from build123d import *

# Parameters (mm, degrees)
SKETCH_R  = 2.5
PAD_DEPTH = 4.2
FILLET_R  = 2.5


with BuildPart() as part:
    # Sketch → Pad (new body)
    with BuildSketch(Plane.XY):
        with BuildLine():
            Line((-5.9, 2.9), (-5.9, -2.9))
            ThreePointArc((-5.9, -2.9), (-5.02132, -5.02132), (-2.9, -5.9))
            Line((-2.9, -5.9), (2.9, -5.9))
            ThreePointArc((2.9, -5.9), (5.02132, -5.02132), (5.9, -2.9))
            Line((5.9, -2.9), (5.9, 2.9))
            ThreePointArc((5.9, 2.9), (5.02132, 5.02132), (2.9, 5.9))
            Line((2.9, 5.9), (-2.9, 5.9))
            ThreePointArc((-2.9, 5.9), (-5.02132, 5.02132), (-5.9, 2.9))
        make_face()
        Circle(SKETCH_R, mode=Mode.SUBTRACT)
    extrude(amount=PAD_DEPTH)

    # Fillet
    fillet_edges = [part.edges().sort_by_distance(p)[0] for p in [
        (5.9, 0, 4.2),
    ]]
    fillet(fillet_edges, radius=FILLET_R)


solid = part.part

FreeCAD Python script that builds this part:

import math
import FreeCAD as App
import Part
import Sketcher
from FreeCAD import Vector


def edges_at(feature, points):
    """Names of the edges that pass closest to the given points."""
    edges = feature.Shape.Edges
    near = lambda p: min(range(len(edges)), key=lambda i: edges[i].distToShape(Part.Vertex(*p))[0])
    return sorted({f"Edge{near(p) + 1}" for p in points})

doc = App.newDocument("Part")
body = doc.addObject("PartDesign::Body", "Body")

# Sketch on XY plane
sketch1 = body.newObject("Sketcher::SketchObject", "Sketch")
sketch1.AttachmentSupport = (doc.getObject("XY_Plane"), [""])
sketch1.MapMode = "FlatFace"
sketch1.addGeometry(Part.LineSegment(Vector(-5.9, 2.9, 0), Vector(-5.9, -2.9, 0)), False)
sketch1.addGeometry(Part.ArcOfCircle(Part.Circle(Vector(-2.899999, -2.899999, 0), Vector(0, 0, 1), 3.000001), math.radians(-179.999978), math.radians(-90.000022)), False)
sketch1.addGeometry(Part.LineSegment(Vector(-2.9, -5.9, 0), Vector(2.9, -5.9, 0)), False)
sketch1.addGeometry(Part.ArcOfCircle(Part.Circle(Vector(2.899999, -2.899999, 0), Vector(0, 0, 1), 3.000001), math.radians(-89.999978), math.radians(-0.000022)), False)
sketch1.addGeometry(Part.LineSegment(Vector(5.9, -2.9, 0), Vector(5.9, 2.9, 0)), False)
sketch1.addGeometry(Part.ArcOfCircle(Part.Circle(Vector(2.899999, 2.899999, 0), Vector(0, 0, 1), 3.000001), math.radians(0.000022), math.radians(89.999978)), False)
sketch1.addGeometry(Part.LineSegment(Vector(2.9, 5.9, 0), Vector(-2.9, 5.9, 0)), False)
sketch1.addGeometry(Part.ArcOfCircle(Part.Circle(Vector(-2.899999, 2.899999, 0), Vector(0, 0, 1), 3.000001), math.radians(90.000022), math.radians(179.999978)), False)
sketch1.addGeometry(Part.Circle(Vector(0, 0, 0), Vector(0, 0, 1), 2.5), False)
sketch1.addConstraint(Sketcher.Constraint("Tangent", 0, 2, 1, 1))
sketch1.addConstraint(Sketcher.Constraint("Tangent", 1, 2, 2, 1))
sketch1.addConstraint(Sketcher.Constraint("Tangent", 2, 2, 3, 1))
sketch1.addConstraint(Sketcher.Constraint("Tangent", 3, 2, 4, 1))
sketch1.addConstraint(Sketcher.Constraint("Tangent", 4, 2, 5, 1))
sketch1.addConstraint(Sketcher.Constraint("Tangent", 5, 2, 6, 1))
sketch1.addConstraint(Sketcher.Constraint("Tangent", 6, 2, 7, 1))
sketch1.addConstraint(Sketcher.Constraint("Tangent", 7, 2, 0, 1))
sketch1.addConstraint(Sketcher.Constraint("Vertical", 0))
sketch1.addConstraint(Sketcher.Constraint("Horizontal", 2))
sketch1.addConstraint(Sketcher.Constraint("Vertical", 4))
sketch1.addConstraint(Sketcher.Constraint("Horizontal", 6))
sketch1.addConstraint(Sketcher.Constraint("Coincident", 8, 3, -1, 1))
sketch1.addConstraint(Sketcher.Constraint("Equal", 1, 3))
sketch1.addConstraint(Sketcher.Constraint("Equal", 3, 5))
sketch1.addConstraint(Sketcher.Constraint("Equal", 5, 7))
sketch1.addConstraint(Sketcher.Constraint("Symmetric", 1, 3, 5, 3, -1, 1))
sketch1.addConstraint(Sketcher.Constraint("Equal", 6, 0))
sketch1.addConstraint(Sketcher.Constraint("Diameter", 8, 5.0))
sketch1.addConstraint(Sketcher.Constraint("Radius", 1, 3.000001))
sketch1.addConstraint(Sketcher.Constraint("DistanceX", 2, 1, 2, 2, 5.8))
pad1 = body.newObject("PartDesign::Pad", "Pad")
pad1.Profile = sketch1
pad1.Length = 4.2
doc.recompute()

fillet = body.newObject("PartDesign::Fillet", "Fillet")
fillet.Base = (pad1, edges_at(pad1, [(5.9, 0, 4.2)]))
fillet.Radius = 2.5

doc.recompute()
